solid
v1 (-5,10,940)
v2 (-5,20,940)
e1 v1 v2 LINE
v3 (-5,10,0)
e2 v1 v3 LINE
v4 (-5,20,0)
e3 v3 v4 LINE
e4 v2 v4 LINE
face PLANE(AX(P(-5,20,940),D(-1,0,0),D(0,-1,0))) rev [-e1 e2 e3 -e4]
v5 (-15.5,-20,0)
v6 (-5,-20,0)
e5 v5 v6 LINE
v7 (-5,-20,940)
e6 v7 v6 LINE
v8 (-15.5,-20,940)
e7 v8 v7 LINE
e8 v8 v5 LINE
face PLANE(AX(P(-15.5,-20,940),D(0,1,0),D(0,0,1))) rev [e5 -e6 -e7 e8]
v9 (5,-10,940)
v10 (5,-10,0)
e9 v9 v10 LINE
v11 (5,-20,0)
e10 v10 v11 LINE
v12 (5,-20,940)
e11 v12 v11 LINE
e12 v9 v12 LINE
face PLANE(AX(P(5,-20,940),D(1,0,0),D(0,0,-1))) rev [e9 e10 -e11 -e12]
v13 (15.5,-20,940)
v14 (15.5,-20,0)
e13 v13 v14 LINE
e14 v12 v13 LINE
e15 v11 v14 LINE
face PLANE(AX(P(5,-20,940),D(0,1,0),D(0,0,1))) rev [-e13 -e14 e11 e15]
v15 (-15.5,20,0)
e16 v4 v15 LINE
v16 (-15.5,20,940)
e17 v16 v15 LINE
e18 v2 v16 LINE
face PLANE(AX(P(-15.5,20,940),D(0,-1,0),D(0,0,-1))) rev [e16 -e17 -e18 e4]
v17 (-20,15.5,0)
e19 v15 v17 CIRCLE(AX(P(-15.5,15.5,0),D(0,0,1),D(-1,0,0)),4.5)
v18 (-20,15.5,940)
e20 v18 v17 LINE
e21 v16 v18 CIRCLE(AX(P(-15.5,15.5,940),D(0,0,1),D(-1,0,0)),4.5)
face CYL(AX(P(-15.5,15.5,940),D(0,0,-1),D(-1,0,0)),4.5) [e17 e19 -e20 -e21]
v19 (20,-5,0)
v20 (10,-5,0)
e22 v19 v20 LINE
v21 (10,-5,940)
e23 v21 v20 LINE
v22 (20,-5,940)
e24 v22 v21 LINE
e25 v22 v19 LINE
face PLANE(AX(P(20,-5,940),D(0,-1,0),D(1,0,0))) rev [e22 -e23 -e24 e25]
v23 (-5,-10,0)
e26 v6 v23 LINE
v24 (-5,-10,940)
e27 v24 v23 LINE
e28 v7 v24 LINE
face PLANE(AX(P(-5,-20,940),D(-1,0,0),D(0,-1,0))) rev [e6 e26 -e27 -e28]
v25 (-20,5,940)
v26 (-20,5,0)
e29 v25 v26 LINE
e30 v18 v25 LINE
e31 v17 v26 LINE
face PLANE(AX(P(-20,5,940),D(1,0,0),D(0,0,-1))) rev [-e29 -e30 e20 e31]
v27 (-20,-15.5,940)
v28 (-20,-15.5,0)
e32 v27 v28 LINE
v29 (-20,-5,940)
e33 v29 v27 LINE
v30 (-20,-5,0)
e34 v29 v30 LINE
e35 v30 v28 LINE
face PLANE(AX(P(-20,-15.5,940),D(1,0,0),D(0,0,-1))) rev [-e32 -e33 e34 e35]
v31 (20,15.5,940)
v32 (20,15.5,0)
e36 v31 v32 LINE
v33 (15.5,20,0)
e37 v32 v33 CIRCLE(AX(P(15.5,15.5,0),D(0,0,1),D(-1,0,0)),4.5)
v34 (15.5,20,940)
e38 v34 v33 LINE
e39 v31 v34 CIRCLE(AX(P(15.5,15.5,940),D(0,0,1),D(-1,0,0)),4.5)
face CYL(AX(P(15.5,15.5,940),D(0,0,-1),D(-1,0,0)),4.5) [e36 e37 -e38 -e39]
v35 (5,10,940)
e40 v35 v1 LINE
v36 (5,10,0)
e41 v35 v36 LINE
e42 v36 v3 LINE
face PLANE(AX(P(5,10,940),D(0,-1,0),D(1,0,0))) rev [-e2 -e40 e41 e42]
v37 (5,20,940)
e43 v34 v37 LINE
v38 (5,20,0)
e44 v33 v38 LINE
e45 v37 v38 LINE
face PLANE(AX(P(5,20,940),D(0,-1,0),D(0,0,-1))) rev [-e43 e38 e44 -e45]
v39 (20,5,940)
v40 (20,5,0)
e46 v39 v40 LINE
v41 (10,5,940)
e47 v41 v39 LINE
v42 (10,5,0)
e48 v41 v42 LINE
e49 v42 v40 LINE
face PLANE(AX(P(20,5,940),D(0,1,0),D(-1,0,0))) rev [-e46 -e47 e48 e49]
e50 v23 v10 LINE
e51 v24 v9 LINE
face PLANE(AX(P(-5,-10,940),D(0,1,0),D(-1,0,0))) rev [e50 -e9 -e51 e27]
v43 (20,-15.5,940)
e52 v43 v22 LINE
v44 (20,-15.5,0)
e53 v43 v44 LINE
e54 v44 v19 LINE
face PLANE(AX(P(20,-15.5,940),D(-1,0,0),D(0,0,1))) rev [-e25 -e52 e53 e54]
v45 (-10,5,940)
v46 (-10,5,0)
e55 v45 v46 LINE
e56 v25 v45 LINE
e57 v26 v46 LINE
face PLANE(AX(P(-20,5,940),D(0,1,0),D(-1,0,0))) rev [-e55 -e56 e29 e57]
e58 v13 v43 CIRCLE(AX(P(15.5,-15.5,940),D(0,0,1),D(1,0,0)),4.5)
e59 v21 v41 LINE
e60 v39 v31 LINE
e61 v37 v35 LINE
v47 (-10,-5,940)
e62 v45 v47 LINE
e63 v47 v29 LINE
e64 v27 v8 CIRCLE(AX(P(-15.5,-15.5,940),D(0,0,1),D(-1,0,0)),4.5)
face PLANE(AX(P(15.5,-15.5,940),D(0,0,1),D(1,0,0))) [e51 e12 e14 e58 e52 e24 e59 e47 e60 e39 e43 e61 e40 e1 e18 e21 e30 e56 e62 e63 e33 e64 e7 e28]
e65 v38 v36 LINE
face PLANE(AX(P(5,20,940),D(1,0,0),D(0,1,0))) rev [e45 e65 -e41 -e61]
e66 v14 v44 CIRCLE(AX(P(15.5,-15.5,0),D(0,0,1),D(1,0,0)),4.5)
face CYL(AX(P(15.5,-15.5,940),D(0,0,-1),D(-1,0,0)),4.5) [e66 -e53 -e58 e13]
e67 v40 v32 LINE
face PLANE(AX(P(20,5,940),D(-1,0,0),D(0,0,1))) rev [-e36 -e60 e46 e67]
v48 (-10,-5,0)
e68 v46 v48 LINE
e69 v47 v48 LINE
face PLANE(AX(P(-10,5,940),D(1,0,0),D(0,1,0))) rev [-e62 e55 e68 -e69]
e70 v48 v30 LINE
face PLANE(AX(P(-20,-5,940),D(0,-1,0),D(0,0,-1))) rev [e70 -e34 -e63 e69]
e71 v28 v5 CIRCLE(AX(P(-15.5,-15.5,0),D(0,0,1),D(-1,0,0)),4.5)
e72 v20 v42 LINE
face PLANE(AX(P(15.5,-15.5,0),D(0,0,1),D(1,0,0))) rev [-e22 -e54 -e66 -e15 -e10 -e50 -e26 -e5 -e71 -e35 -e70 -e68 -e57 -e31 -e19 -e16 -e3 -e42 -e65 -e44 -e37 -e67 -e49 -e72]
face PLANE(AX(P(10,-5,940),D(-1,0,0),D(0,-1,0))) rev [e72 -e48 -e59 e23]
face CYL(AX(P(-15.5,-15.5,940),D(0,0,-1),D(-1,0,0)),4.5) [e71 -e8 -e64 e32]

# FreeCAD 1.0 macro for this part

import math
import FreeCAD as App
import Part
import Sketcher

doc = App.newDocument("Part")
body = doc.addObject("PartDesign::Body", "Body")

# Sketch on XY plane
sketch1 = body.newObject("Sketcher::SketchObject", "Sketch")
sketch1.AttachmentSupport = (doc.getObject("XY_Plane"), [""])
sketch1.MapMode = "FlatFace"
sketch1.addGeometry([
    Part.LineSegment(App.Vector(-15.5, -20, 0), App.Vector(-5, -20, 0)),  # 0
    Part.LineSegment(App.Vector(-5, -20, 0), App.Vector(-5, -10, 0)),  # 1
    Part.LineSegment(App.Vector(-5, -10, 0), App.Vector(5, -10, 0)),  # 2
    Part.LineSegment(App.Vector(5, -10, 0), App.Vector(5, -20, 0)),  # 3
    Part.LineSegment(App.Vector(5, -20, 0), App.Vector(15.5, -20, 0)),  # 4
    Part.ArcOfCircle(Part.Circle(App.Vector(15.5, -15.5, 0), App.Vector(0, 0, 1), 4.5), math.radians(-90), math.radians(0)),  # 5
    Part.LineSegment(App.Vector(20, -15.5, 0), App.Vector(20, -5, 0)),  # 6
    Part.LineSegment(App.Vector(20, -5, 0), App.Vector(10, -5, 0)),  # 7
    Part.LineSegment(App.Vector(10, -5, 0), App.Vector(10, 5, 0)),  # 8
    Part.LineSegment(App.Vector(10, 5, 0), App.Vector(20, 5, 0)),  # 9
    Part.LineSegment(App.Vector(20, 5, 0), App.Vector(20, 15.5, 0)),  # 10
    Part.ArcOfCircle(Part.Circle(App.Vector(15.5, 15.5, 0), App.Vector(0, 0, 1), 4.5), math.radians(0), math.radians(90)),  # 11
    Part.LineSegment(App.Vector(15.5, 20, 0), App.Vector(5, 20, 0)),  # 12
    Part.LineSegment(App.Vector(5, 20, 0), App.Vector(5, 10, 0)),  # 13
    Part.LineSegment(App.Vector(5, 10, 0), App.Vector(-5, 10, 0)),  # 14
    Part.LineSegment(App.Vector(-5, 10, 0), App.Vector(-5, 20, 0)),  # 15
    Part.LineSegment(App.Vector(-5, 20, 0), App.Vector(-15.5, 20, 0)),  # 16
    Part.ArcOfCircle(Part.Circle(App.Vector(-15.5, 15.5, 0), App.Vector(0, 0, 1), 4.5), math.radians(90), math.radians(180)),  # 17
    Part.LineSegment(App.Vector(-20, 15.5, 0), App.Vector(-20, 5, 0)),  # 18
    Part.LineSegment(App.Vector(-20, 5, 0), App.Vector(-10, 5, 0)),  # 19
    Part.LineSegment(App.Vector(-10, 5, 0), App.Vector(-10, -5, 0)),  # 20
    Part.LineSegment(App.Vector(-10, -5, 0), App.Vector(-20, -5, 0)),  # 21
    Part.LineSegment(App.Vector(-20, -5, 0), App.Vector(-20, -15.5, 0)),  # 22
    Part.ArcOfCircle(Part.Circle(App.Vector(-15.5, -15.5, 0), App.Vector(0, 0, 1), 4.5), math.radians(-180), math.radians(-90)),  # 23
], False)
sketch1.addConstraint([
    Sketcher.Constraint("Coincident", 0, 2, 1, 1),
    Sketcher.Constraint("Coincident", 1, 2, 2, 1),
    Sketcher.Constraint("Coincident", 2, 2, 3, 1),
    Sketcher.Constraint("Coincident", 3, 2, 4, 1),
    Sketcher.Constraint("Tangent", 4, 2, 5, 1),
    Sketcher.Constraint("Tangent", 5, 2, 6, 1),
    Sketcher.Constraint("Coincident", 6, 2, 7, 1),
    Sketcher.Constraint("Coincident", 7, 2, 8, 1),
    Sketcher.Constraint("Coincident", 8, 2, 9, 1),
    Sketcher.Constraint("Coincident", 9, 2, 10, 1),
    Sketcher.Constraint("Tangent", 10, 2, 11, 1),
    Sketcher.Constraint("Tangent", 11, 2, 12, 1),
    Sketcher.Constraint("Coincident", 12, 2, 13, 1),
    Sketcher.Constraint("Coincident", 13, 2, 14, 1),
    Sketcher.Constraint("Coincident", 14, 2, 15, 1),
    Sketcher.Constraint("Coincident", 15, 2, 16, 1),
    Sketcher.Constraint("Tangent", 16, 2, 17, 1),
    Sketcher.Constraint("Tangent", 17, 2, 18, 1),
    Sketcher.Constraint("Coincident", 18, 2, 19, 1),
    Sketcher.Constraint("Coincident", 19, 2, 20, 1),
    Sketcher.Constraint("Coincident", 20, 2, 21, 1),
    Sketcher.Constraint("Coincident", 21, 2, 22, 1),
    Sketcher.Constraint("Tangent", 22, 2, 23, 1),
    Sketcher.Constraint("Tangent", 23, 2, 0, 1),
    Sketcher.Constraint("Horizontal", 0),
    Sketcher.Constraint("Vertical", 1),
    Sketcher.Constraint("Horizontal", 2),
    Sketcher.Constraint("Vertical", 3),
    Sketcher.Constraint("Horizontal", 4),
    Sketcher.Constraint("Vertical", 6),
    Sketcher.Constraint("Horizontal", 7),
    Sketcher.Constraint("Vertical", 8),
    Sketcher.Constraint("Horizontal", 9),
    Sketcher.Constraint("Vertical", 10),
    Sketcher.Constraint("Horizontal", 12),
    Sketcher.Constraint("Vertical", 13),
    Sketcher.Constraint("Horizontal", 14),
    Sketcher.Constraint("Vertical", 15),
    Sketcher.Constraint("Horizontal", 16),
    Sketcher.Constraint("Vertical", 18),
    Sketcher.Constraint("Horizontal", 19),
    Sketcher.Constraint("Vertical", 20),
    Sketcher.Constraint("Horizontal", 21),
    Sketcher.Constraint("Vertical", 22),
    Sketcher.Constraint("Equal", 5, 11),
    Sketcher.Constraint("Equal", 11, 17),
    Sketcher.Constraint("Equal", 17, 23),
    Sketcher.Constraint("Symmetric", 5, 3, 17, 3, -1, 1),
    Sketcher.Constraint("Symmetric", 11, 3, 23, 3, -1, 1),
    Sketcher.Constraint("Symmetric", 1, 2, 13, 2, -1, 1),
    Sketcher.Constraint("Symmetric", 7, 2, 19, 2, -1, 1),
    Sketcher.Constraint("Symmetric", 11, 3, 17, 3, -2),
    Sketcher.Constraint("Horizontal", 9, 2, 18, 2),
    Sketcher.Constraint("Horizontal", 7, 2, 20, 2),
    Sketcher.Constraint("Vertical", 3, 2, 12, 2),
    Sketcher.Constraint("Vertical", 1, 2, 14, 2),
    Sketcher.Constraint("Equal", 2, 7),
    Sketcher.Constraint("Equal", 21, 1),
    Sketcher.Constraint("Equal", 16, 6),
    Sketcher.Constraint("Equal", 3, 8),
    Sketcher.Constraint("Radius", 5, 4.5),
    Sketcher.Constraint("DistanceX", 2, 1, 2, 2, 10.0),
    Sketcher.Constraint("DistanceX", 0, 1, 0, 2, 10.5),
])
pad1 = body.newObject("PartDesign::Pad", "Pad")
pad1.Profile = sketch1
pad1.Length = 940

doc.recompute()
